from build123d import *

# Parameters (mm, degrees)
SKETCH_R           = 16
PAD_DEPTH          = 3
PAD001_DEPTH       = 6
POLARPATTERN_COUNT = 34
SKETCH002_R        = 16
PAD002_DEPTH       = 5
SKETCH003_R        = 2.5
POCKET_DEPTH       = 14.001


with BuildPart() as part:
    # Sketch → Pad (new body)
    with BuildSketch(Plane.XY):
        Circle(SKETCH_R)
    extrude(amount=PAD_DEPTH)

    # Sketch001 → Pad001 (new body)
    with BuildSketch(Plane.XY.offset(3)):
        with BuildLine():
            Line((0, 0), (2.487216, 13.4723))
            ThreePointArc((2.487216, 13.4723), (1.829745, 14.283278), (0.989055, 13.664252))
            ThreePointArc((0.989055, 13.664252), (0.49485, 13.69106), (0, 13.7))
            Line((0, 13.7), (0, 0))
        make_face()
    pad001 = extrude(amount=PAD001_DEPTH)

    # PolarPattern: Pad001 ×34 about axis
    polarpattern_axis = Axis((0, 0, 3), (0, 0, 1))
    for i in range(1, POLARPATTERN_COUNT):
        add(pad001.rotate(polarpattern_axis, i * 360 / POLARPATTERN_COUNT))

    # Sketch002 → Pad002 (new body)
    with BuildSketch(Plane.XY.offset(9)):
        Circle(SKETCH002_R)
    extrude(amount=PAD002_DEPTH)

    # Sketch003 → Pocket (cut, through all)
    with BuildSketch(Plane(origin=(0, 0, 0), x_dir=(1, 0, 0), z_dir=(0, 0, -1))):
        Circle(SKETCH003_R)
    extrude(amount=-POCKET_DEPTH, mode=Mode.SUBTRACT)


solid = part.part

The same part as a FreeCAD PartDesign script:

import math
import FreeCAD as App
import Part
import Sketcher

V = App.Vector
Q = App.Units.Quantity

doc = App.newDocument("Part")
params = doc.addObject("Spreadsheet::Sheet", "Params")
for row, (alias, value) in enumerate([
    ("sketch1_diameter", "32 mm"),
    ("pad1_length", "3 mm"),
    ("sketch2_height", "13.7 mm"),
    ("pad2_length", "6 mm"),
    ("sketch3_diameter", "32 mm"),
    ("pad3_length", "5 mm"),
    ("sketch4_diameter", "5 mm"),
], start=1):
    params.set(f"A{row}", alias)
    params.set(f"B{row}", "=" + value)
    params.setAlias(f"B{row}", alias)

body = doc.addObject("PartDesign::Body", "Body")

# Sketch on XY plane
sketch1 = body.newObject("Sketcher::SketchObject", "Sketch")
sketch1.AttachmentSupport = (doc.getObject("XY_Plane"), [""])
sketch1.MapMode = "FlatFace"
sketch1.addGeometry(Part.Circle(V(0, 0, 0), V(0, 0, 1), 16), False)
sketch1.addConstraint(Sketcher.Constraint("Coincident", 0, 3, -1, 1))
sketch1.addConstraint(Sketcher.Constraint("Diameter", 0, Q("32 mm")))
sketch1.setExpression("Constraints[1]", "Params.sketch1_diameter")
pad1 = body.newObject("PartDesign::Pad", "Pad")
pad1.Profile = sketch1
pad1.setExpression("Length", "Params.pad1_length")

# Sketch on XY plane
sketch2 = body.newObject("Sketcher::SketchObject", "Sketch001")
sketch2.AttachmentSupport = (doc.getObject("XY_Plane"), [""])
sketch2.MapMode = "FlatFace"
sketch2.AttachmentOffset = App.Placement(V(0, 0, 3), App.Rotation())
sketch2.addGeometry(Part.LineSegment(V(0, 0, 0), V(2.487216, 13.4723, 0)), False)
sketch2.addGeometry(Part.ArcOfCircle(Part.Circle(V(1.733665, 13.533385, 0), V(0, 0, 1), 0.756023), math.radians(-4.634453), math.radians(170.031959)), False)
sketch2.addGeometry(Part.ArcOfCircle(Part.Circle(V(-0.000005, -0.000325, 0), V(0, 0, 1), 13.700325), math.radians(85.860074), math.radians(89.999977)), False)
sketch2.addGeometry(Part.LineSegment(V(0, 13.7, 0), V(0, 0, 0)), False)
sketch2.addConstraint(Sketcher.Constraint("Coincident", 0, 2, 1, 1))
sketch2.addConstraint(Sketcher.Constraint("Coincident", 1, 2, 2, 1))
sketch2.addConstraint(Sketcher.Constraint("Coincident", 2, 2, 3, 1))
sketch2.addConstraint(Sketcher.Constraint("Coincident", 3, 2, 0, 1))
sketch2.addConstraint(Sketcher.Constraint("Vertical", 3))
sketch2.addConstraint(Sketcher.Constraint("Coincident", 3, 2, -1, 1))
sketch2.addConstraint(Sketcher.Constraint("DistanceY", 3, 2, 3, 1, Q("13.7 mm")))
sketch2.addConstraint(Sketcher.Constraint("Angle", 0, Q("79.54 deg")))
sketch2.addConstraint(Sketcher.Constraint("Radius", 1, Q("0.756023 mm")))
sketch2.addConstraint(Sketcher.Constraint("Radius", 2, Q("13.700325 mm")))
sketch2.addConstraint(Sketcher.Constraint("DistanceY", -1, 1, 0, 2, Q("13.4723 mm")))
sketch2.addConstraint(Sketcher.Constraint("DistanceX", 2, 3, 1, 3, Q("1.733671 mm")))
sketch2.addConstraint(Sketcher.Constraint("DistanceY", 2, 3, 1, 3, Q("13.53371 mm")))
sketch2.setExpression("Constraints[6]", "Params.sketch2_height")
pad2 = body.newObject("PartDesign::Pad", "Pad001")
pad2.Profile = sketch2
pad2.setExpression("Length", "Params.pad2_length")
doc.recompute()

polarpattern = body.newObject("PartDesign::PolarPattern", "PolarPattern")
polarpattern.Originals = [pad2]
polarpattern.Axis = (doc.getObject("Z_Axis"), [""])
polarpattern.Angle = 360
polarpattern.Occurrences = 34
body.Tip = polarpattern

# Sketch on XY plane
sketch3 = body.newObject("Sketcher::SketchObject", "Sketch002")
sketch3.AttachmentSupport = (doc.getObject("XY_Plane"), [""])
sketch3.MapMode = "FlatFace"
sketch3.AttachmentOffset = App.Placement(V(0, 0, 9), App.Rotation())
sketch3.addGeometry(Part.Circle(V(0, 0, 0), V(0, 0, 1), 16), False)
sketch3.addConstraint(Sketcher.Constraint("Coincident", 0, 3, -1, 1))
sketch3.addConstraint(Sketcher.Constraint("Diameter", 0, Q("32 mm")))
sketch3.setExpression("Constraints[1]", "Params.sketch3_diameter")
pad3 = body.newObject("PartDesign::Pad", "Pad002")
pad3.Profile = sketch3
pad3.setExpression("Length", "Params.pad3_length")

# Sketch on XY plane
sketch4 = body.newObject("Sketcher::SketchObject", "Sketch003")
sketch4.AttachmentSupport = (doc.getObject("XY_Plane"), [""])
sketch4.MapMode = "FlatFace"
sketch4.addGeometry(Part.Circle(V(0, 0, 0), V(0, 0, 1), 2.5), False)
sketch4.addConstraint(Sketcher.Constraint("Coincident", 0, 3, -1, 1))
sketch4.addConstraint(Sketcher.Constraint("Diameter", 0, Q("5 mm")))
sketch4.setExpression("Constraints[1]", "Params.sketch4_diameter")
pocket1 = body.newObject("PartDesign::Pocket", "Pocket")
pocket1.Profile = sketch4
pocket1.Type = "ThroughAll"
pocket1.Reversed = True

doc.recompute()
